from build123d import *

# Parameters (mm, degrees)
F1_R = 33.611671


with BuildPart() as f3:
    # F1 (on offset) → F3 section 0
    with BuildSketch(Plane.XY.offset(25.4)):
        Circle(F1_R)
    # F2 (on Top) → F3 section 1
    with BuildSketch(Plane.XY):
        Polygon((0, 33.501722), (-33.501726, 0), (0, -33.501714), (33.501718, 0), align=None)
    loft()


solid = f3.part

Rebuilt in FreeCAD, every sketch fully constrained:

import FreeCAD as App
import Part
import Sketcher

V = App.Vector
Q = App.Units.Quantity


def add_polygon(sketch, points):
    """Adds a closed chain of lines whose ends are joined by coincident constraints."""
    first, n = sketch.GeometryCount, len(points)
    for a, b in zip(points, points[1:] + points[:1]):
        sketch.addGeometry(Part.LineSegment(App.Vector(*a, 0), App.Vector(*b, 0)), False)
    for i in range(n):
        sketch.addConstraint(Sketcher.Constraint("Coincident", first + i, 2, first + (i + 1) % n, 1))

doc = App.newDocument("Part")
body = doc.addObject("PartDesign::Body", "Body")

sketch1 = body.newObject("Sketcher::SketchObject", "Sketch")
sketch1.AttachmentSupport = (doc.getObject("XY_Plane"), [""])
sketch1.MapMode = "FlatFace"
sketch1.AttachmentOffset = App.Placement(V(0, 0, 25.4), App.Rotation())
sketch1.addGeometry(Part.Circle(V(0, 0, 0), V(0, 0, 1), 34), False)
sketch1.addConstraint(Sketcher.Constraint("Coincident", 0, 3, -1, 1))
sketch1.addConstraint(Sketcher.Constraint("Diameter", 0, Q("67.223342 mm")))

sketch2 = body.newObject("Sketcher::SketchObject", "Sketch001")
sketch2.AttachmentSupport = (doc.getObject("XY_Plane"), [""])
sketch2.MapMode = "FlatFace"
add_polygon(sketch2, [(0, 34), (-34, 0), (0, -34), (34, 0)])
sketch2.addConstraint(Sketcher.Constraint("Symmetric", 0, 2, 2, 2, -1, 1))
sketch2.addConstraint(Sketcher.Constraint("Symmetric", 1, 2, 3, 2, -1, 1))
sketch2.addConstraint(Sketcher.Constraint("PointOnObject", 0, 2, -1))
sketch2.addConstraint(Sketcher.Constraint("PointOnObject", 1, 2, -2))
sketch2.addConstraint(Sketcher.Constraint("Perpendicular", 0, 1))
sketch2.addConstraint(Sketcher.Constraint("Distance", 2, Q("47.378581 mm")))

additiveloft = body.newObject("PartDesign::AdditiveLoft", "AdditiveLoft")
additiveloft.Profile = sketch1
additiveloft.Sections = [sketch2]

doc.recompute()
